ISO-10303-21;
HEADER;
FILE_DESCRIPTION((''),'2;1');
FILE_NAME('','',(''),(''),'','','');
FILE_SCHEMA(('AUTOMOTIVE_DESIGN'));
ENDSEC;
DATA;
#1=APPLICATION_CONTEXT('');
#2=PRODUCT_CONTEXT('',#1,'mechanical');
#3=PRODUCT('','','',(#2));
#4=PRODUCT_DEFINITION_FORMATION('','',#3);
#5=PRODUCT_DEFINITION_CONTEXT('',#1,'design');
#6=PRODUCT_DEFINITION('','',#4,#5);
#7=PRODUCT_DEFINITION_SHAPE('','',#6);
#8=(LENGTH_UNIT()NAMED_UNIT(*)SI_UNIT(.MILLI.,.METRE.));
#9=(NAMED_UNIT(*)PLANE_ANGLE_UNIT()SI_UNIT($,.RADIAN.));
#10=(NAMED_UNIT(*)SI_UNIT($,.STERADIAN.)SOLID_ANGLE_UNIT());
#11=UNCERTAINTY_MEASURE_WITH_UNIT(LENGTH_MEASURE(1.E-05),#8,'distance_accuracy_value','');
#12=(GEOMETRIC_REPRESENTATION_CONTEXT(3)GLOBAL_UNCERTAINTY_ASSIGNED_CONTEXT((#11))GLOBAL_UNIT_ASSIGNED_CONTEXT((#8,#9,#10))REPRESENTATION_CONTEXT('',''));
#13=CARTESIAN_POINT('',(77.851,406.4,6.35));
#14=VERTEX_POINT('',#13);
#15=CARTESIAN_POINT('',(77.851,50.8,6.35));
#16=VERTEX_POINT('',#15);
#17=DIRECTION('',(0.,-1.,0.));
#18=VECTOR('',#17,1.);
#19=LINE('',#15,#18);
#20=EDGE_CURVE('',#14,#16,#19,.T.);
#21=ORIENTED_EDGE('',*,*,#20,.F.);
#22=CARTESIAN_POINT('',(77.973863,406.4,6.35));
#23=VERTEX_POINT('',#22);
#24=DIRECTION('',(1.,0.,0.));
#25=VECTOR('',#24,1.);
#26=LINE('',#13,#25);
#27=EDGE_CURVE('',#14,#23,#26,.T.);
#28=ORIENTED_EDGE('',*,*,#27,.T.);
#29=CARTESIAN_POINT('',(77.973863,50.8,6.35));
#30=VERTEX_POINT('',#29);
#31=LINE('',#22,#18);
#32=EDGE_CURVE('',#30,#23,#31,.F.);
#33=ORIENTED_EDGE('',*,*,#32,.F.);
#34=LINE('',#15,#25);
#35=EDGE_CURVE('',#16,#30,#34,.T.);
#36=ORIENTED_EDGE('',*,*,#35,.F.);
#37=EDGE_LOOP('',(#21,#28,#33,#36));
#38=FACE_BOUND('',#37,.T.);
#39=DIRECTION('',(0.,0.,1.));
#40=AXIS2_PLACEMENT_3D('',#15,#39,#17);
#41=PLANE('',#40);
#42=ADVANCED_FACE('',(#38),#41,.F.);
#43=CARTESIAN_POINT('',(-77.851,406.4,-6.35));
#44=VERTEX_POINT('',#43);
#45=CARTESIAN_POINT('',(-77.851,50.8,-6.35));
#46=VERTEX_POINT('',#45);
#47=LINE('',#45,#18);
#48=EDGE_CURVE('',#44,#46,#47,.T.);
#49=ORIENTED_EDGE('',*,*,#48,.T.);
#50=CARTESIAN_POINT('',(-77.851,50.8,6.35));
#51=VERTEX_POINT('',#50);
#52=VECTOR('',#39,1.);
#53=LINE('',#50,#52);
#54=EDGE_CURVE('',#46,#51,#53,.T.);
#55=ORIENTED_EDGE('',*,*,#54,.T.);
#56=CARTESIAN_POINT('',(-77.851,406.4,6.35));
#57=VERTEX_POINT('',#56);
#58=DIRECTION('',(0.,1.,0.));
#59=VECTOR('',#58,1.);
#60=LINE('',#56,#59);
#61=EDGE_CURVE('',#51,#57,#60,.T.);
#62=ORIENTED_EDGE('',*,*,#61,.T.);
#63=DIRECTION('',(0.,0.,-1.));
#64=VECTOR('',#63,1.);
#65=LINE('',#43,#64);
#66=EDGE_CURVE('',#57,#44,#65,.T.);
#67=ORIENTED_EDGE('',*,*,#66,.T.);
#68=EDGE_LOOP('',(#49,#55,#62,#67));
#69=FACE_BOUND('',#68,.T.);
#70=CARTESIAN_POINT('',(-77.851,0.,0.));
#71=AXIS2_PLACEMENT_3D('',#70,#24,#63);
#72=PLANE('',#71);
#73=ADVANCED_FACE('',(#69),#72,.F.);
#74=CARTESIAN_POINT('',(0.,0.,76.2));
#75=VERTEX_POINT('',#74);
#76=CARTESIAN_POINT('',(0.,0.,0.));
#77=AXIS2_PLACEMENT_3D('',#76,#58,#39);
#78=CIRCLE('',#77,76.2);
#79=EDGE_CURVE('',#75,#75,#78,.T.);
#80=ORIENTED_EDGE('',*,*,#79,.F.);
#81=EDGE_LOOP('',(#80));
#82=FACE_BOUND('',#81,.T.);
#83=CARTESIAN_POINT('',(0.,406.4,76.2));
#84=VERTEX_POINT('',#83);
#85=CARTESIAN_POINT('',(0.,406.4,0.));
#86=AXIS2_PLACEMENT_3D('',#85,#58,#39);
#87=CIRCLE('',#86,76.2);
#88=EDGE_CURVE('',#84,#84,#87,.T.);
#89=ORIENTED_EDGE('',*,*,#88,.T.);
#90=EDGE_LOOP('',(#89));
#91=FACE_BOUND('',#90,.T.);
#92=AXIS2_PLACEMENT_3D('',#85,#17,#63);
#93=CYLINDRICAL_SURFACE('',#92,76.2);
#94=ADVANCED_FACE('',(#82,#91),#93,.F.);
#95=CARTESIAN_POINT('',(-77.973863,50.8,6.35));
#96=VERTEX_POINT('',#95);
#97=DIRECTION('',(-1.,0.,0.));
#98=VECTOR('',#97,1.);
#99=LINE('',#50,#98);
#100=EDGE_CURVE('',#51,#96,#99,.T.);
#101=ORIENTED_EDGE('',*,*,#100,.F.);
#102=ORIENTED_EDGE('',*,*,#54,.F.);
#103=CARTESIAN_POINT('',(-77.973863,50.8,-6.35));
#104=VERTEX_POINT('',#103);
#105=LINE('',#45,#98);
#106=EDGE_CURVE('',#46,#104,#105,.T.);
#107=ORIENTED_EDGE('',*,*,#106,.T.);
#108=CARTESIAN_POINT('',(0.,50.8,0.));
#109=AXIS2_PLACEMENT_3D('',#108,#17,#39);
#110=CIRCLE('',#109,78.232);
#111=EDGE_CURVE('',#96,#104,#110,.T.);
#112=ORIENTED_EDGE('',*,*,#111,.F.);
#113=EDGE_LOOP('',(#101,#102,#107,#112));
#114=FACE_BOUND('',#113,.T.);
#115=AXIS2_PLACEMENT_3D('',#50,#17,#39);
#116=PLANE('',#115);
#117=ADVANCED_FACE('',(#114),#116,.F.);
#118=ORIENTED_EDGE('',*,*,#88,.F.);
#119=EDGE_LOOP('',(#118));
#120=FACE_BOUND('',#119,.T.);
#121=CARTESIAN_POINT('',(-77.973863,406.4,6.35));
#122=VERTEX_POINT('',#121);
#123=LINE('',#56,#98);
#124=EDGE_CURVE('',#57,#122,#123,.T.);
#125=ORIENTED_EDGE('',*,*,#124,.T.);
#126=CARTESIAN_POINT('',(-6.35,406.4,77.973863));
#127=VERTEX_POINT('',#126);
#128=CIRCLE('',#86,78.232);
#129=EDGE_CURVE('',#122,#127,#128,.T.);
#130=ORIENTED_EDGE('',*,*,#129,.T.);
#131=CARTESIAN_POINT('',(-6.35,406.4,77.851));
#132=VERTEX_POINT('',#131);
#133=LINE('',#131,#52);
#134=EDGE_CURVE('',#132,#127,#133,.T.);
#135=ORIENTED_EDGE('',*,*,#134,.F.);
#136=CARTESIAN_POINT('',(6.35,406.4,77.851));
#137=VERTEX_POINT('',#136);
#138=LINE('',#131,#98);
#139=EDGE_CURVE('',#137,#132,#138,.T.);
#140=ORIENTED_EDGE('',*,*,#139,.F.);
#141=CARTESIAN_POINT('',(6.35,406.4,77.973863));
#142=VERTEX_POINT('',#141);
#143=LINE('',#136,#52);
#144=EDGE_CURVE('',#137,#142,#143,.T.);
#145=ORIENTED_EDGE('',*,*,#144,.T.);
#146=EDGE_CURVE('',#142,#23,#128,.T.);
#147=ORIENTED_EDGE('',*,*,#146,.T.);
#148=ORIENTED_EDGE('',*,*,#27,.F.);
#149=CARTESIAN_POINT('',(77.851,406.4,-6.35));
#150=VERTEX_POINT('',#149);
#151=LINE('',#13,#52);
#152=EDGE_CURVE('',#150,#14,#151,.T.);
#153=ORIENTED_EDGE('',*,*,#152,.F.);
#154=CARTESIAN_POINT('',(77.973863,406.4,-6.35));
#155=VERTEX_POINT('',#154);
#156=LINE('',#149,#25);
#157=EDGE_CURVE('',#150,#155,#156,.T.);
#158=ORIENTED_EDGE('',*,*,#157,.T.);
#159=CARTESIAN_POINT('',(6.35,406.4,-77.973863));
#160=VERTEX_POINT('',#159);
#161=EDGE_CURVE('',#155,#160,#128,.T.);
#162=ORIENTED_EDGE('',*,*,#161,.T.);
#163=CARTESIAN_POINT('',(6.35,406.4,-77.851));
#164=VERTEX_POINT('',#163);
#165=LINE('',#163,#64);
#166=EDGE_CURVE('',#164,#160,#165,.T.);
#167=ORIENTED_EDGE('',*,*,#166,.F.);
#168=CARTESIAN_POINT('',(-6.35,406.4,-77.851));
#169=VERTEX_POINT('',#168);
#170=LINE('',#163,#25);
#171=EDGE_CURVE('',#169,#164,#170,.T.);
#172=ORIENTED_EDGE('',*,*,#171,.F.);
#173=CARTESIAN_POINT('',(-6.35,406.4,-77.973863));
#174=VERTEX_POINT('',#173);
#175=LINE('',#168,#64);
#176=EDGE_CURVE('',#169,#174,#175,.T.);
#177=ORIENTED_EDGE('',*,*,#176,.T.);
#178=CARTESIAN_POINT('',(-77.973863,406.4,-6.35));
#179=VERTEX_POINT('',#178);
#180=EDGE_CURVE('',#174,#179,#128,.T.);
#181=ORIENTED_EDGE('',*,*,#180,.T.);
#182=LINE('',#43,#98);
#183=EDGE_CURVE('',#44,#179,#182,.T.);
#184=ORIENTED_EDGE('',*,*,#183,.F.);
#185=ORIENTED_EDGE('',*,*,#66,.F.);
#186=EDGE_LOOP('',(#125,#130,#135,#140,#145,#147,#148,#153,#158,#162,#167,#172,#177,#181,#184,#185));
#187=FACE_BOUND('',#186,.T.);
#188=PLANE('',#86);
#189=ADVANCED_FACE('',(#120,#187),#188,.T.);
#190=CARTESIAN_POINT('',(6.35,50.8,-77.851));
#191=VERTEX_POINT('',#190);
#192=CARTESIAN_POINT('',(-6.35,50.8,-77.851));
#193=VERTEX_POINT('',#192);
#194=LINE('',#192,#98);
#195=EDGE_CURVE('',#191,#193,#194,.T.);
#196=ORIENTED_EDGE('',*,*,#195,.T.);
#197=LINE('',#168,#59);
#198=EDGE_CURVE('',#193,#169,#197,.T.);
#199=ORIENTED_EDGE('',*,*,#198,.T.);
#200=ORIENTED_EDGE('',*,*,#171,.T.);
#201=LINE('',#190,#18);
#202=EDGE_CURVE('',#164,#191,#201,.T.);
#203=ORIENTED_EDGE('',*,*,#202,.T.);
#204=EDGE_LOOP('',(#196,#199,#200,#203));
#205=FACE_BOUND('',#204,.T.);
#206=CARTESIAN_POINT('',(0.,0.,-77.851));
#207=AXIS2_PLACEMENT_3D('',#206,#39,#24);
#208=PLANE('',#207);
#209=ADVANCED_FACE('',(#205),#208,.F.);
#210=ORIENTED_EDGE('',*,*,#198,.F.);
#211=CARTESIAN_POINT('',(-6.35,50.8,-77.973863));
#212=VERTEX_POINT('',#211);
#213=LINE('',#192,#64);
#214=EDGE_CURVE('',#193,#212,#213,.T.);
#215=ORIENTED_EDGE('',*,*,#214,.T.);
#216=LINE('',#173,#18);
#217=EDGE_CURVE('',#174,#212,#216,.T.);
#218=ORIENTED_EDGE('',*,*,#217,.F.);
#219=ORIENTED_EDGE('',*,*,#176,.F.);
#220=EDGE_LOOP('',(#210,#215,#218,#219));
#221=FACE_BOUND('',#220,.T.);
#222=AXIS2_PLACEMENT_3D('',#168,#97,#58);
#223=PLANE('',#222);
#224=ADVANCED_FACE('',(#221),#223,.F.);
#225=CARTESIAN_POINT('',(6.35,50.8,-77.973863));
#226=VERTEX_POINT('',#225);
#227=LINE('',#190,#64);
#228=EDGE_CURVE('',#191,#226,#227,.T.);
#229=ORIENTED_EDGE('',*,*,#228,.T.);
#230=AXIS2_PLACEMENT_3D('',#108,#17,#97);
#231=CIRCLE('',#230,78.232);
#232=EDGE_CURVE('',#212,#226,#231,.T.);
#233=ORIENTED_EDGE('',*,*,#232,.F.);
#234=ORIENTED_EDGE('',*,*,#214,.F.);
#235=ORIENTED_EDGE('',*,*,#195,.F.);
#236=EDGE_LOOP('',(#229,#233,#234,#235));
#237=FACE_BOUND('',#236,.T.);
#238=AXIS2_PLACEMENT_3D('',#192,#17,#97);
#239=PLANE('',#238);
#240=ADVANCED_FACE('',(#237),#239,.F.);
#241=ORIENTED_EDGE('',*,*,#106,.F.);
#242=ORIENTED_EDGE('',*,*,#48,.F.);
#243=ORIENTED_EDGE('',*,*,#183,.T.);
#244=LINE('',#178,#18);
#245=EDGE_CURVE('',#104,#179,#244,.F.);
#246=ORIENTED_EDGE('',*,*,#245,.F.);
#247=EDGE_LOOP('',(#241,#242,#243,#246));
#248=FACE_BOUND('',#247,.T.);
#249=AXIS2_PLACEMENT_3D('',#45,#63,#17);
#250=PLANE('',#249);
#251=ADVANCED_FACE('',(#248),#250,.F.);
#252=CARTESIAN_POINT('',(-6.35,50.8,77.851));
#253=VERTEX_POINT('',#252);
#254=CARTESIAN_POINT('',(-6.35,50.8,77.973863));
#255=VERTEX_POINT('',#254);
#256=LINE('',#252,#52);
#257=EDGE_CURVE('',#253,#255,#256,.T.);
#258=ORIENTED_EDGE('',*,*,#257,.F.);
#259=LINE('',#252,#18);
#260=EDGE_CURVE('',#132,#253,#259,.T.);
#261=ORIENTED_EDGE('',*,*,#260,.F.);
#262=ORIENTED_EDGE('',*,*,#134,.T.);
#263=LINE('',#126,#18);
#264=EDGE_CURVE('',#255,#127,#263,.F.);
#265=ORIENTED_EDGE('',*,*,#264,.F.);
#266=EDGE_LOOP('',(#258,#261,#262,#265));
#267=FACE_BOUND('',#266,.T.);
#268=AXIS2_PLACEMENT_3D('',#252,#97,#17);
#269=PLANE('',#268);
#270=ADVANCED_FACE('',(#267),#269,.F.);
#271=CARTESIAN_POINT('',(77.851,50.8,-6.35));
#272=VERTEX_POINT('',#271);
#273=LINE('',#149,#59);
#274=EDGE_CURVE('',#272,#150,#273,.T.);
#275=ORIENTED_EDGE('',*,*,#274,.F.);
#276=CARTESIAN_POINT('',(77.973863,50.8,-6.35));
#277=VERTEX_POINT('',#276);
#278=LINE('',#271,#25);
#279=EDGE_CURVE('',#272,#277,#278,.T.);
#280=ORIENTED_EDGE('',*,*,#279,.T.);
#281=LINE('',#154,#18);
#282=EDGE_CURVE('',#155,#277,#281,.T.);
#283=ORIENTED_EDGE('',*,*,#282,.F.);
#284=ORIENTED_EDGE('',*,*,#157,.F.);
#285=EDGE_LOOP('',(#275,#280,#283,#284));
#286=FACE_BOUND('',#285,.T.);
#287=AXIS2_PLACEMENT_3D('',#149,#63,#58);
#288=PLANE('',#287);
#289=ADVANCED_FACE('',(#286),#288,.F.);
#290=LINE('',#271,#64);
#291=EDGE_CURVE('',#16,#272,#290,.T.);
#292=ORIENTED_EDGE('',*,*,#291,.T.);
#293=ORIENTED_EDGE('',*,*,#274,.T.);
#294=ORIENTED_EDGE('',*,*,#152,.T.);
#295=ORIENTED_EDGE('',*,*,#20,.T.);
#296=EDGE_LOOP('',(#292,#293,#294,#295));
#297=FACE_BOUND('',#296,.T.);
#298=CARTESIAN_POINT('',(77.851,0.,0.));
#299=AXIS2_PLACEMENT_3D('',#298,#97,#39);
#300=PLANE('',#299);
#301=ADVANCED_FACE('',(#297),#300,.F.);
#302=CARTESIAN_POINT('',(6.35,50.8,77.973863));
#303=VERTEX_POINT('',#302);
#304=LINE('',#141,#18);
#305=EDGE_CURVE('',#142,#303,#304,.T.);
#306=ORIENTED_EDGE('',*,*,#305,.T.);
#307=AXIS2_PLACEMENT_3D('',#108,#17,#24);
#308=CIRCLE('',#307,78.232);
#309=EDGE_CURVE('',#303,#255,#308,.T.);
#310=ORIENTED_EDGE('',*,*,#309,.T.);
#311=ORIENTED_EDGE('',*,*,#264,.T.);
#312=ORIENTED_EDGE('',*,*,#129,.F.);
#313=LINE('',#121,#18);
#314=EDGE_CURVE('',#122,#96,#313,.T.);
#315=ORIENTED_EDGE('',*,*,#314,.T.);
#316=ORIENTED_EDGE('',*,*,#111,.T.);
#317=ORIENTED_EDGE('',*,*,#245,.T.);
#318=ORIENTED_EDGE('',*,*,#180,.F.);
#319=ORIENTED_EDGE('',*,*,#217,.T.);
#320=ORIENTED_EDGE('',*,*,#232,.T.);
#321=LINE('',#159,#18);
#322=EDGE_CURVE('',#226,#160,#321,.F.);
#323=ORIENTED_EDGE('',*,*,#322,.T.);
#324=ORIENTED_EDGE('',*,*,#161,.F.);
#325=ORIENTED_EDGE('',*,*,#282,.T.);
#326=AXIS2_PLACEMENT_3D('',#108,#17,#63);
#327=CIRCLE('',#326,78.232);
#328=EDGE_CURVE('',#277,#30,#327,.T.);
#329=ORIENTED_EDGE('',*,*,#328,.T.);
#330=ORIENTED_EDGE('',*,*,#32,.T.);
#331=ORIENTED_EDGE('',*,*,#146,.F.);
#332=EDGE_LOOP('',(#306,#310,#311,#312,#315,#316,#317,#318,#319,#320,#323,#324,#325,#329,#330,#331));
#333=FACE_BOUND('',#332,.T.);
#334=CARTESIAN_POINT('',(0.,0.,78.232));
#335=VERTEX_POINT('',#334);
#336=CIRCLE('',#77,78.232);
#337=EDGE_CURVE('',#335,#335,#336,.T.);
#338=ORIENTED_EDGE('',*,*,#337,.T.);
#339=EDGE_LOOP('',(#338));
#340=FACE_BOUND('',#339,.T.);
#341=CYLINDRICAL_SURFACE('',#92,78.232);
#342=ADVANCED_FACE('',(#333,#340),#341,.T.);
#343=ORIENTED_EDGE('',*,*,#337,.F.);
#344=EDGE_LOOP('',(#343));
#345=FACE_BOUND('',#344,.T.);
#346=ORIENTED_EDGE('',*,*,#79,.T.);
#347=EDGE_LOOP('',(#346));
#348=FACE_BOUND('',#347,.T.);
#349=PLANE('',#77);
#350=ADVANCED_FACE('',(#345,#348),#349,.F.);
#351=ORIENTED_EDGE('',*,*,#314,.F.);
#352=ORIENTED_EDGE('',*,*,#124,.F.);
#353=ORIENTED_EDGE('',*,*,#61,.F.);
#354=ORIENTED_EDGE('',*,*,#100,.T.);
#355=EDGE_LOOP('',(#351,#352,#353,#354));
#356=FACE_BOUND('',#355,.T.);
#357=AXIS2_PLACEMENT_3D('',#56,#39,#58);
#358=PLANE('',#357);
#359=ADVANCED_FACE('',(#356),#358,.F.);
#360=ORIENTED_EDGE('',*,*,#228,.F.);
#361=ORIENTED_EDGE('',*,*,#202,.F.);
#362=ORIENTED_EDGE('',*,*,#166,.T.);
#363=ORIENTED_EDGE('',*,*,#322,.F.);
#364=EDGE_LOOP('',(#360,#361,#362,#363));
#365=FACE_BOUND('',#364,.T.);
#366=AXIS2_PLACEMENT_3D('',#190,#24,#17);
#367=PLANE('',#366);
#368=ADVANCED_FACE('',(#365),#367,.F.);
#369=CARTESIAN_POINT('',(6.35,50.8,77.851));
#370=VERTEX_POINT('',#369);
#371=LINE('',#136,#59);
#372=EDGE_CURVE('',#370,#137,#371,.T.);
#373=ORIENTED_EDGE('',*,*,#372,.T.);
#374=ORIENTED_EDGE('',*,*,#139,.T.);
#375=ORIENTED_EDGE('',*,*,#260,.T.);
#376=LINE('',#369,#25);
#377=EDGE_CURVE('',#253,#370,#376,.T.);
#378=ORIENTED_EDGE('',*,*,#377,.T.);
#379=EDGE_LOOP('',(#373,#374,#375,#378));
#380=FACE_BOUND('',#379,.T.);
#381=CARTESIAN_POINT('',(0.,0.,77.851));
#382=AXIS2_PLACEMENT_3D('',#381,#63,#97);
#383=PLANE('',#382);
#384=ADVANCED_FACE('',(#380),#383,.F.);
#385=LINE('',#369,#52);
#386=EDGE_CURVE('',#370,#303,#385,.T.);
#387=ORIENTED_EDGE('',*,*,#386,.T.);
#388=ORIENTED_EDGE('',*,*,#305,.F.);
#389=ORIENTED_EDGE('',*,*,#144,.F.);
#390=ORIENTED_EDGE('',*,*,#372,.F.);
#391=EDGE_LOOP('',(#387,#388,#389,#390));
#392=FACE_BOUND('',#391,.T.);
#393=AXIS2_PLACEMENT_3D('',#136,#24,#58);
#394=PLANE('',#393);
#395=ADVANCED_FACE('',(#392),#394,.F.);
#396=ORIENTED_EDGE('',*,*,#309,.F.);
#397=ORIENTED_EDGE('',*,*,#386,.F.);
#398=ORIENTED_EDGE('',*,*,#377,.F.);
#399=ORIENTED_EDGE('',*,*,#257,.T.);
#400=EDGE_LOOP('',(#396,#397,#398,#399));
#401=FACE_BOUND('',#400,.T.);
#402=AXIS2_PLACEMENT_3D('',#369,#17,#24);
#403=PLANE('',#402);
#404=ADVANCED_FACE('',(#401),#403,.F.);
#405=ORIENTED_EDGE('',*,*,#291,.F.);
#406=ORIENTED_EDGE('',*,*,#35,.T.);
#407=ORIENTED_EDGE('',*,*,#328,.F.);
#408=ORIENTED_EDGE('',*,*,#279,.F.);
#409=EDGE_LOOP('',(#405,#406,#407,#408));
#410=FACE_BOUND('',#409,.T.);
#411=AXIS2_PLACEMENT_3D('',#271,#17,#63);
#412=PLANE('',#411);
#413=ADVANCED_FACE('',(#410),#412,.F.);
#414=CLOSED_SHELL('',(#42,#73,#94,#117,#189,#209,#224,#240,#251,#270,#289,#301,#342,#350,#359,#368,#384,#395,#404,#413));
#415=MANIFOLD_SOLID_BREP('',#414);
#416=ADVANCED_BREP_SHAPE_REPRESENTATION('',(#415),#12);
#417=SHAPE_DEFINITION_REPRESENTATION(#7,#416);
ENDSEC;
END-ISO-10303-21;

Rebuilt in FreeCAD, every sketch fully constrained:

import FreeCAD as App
import Part
import Sketcher
from FreeCAD import Vector
Q = App.Units.Quantity

doc = App.newDocument("Part")
body = doc.addObject("PartDesign::Body", "Body")

# Sketch on XZ plane
sketch1 = body.newObject("Sketcher::SketchObject", "Sketch")
sketch1.AttachmentSupport = (doc.getObject("XZ_Plane"), [""])
sketch1.MapMode = "FlatFace"
sketch1.addGeometry(Part.Circle(Vector(0, 0, 0), Vector(0, 0, 1), 78), False)
sketch1.addGeometry(Part.Circle(Vector(0, 0, 0), Vector(0, 0, 1), 76), False)
sketch1.addConstraint(Sketcher.Constraint("Coincident", 0, 3, -1, 1))
sketch1.addConstraint(Sketcher.Constraint("Coincident", 1, 3, -1, 1))
sketch1.addConstraint(Sketcher.Constraint("Diameter", 1, Q("6 in")))
sketch1.addConstraint(Sketcher.Constraint("Diameter", 0, Q("6.16 in")))
pad1 = body.newObject("PartDesign::Pad", "Pad")
pad1.Profile = sketch1
pad1.Length = Q("16 in")
pad1.Reversed = True

# Sketch on YZ plane
sketch2 = body.newObject("Sketcher::SketchObject", "Sketch001")
sketch2.AttachmentSupport = (doc.getObject("YZ_Plane"), [""])
sketch2.MapMode = "FlatFace"
sketch2.AttachmentOffset = App.Placement(Vector(0, 0, 3.08 * 25.4), App.Rotation())
sketch2.addGeometry(Part.LineSegment(Vector(406, -6, 0), Vector(406, 6, 0)), False)
sketch2.addGeometry(Part.LineSegment(Vector(406, 6, 0), Vector(51, 6, 0)), False)
sketch2.addGeometry(Part.LineSegment(Vector(51, 6, 0), Vector(51, -6, 0)), False)
sketch2.addGeometry(Part.LineSegment(Vector(51, -6, 0), Vector(406, -6, 0)), False)
sketch2.addConstraint(Sketcher.Constraint("Coincident", 0, 2, 1, 1))
sketch2.addConstraint(Sketcher.Constraint("Coincident", 1, 2, 2, 1))
sketch2.addConstraint(Sketcher.Constraint("Coincident", 2, 2, 3, 1))
sketch2.addConstraint(Sketcher.Constraint("Coincident", 3, 2, 0, 1))
sketch2.addConstraint(Sketcher.Constraint("Vertical", 0))
sketch2.addConstraint(Sketcher.Constraint("Horizontal", 1))
sketch2.addConstraint(Sketcher.Constraint("Vertical", 2))
sketch2.addConstraint(Sketcher.Constraint("Horizontal", 3))
sketch2.addConstraint(Sketcher.Constraint("DistanceX", 1, 2, 1, 1, Q("14 in")))
sketch2.addConstraint(Sketcher.Constraint("DistanceY", 0, 1, 0, 2, Q("0.5 in")))
sketch2.addConstraint(Sketcher.Constraint("DistanceX", -1, 1, 0, 2, Q("16 in")))
sketch2.addConstraint(Sketcher.Constraint("DistanceY", -1, 1, 0, 2, Q("0.25 in")))
pocket1 = body.newObject("PartDesign::Pocket", "Pocket")
pocket1.Profile = sketch2
pocket1.Length = Q("0.015 in")
doc.recompute()

polarpattern = body.newObject("PartDesign::PolarPattern", "PolarPattern")
polarpattern.Originals = [pocket1]
polarpattern.Axis = (doc.getObject("Y_Axis"), [""])
polarpattern.Angle = 360
polarpattern.Occurrences = 4
body.Tip = polarpattern

doc.recompute()
